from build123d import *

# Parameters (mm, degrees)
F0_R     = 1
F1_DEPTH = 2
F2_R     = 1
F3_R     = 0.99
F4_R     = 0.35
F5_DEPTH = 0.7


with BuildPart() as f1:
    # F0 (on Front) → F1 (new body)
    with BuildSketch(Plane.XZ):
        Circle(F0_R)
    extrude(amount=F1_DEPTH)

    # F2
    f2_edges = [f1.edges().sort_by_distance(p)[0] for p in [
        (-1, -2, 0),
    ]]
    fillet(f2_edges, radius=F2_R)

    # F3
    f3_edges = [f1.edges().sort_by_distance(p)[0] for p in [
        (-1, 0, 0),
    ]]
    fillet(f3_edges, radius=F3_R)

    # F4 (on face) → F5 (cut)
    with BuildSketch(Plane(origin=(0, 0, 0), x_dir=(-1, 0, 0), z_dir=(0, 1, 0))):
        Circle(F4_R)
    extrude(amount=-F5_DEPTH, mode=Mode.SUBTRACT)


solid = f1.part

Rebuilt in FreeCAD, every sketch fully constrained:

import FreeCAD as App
import Part
import Sketcher

V = App.Vector


def edges_at(feature, points):
    """Names of the edges that pass closest to the given points."""
    edges = feature.Shape.Edges
    near = lambda p: min(range(len(edges)), key=lambda i: edges[i].distToShape(Part.Vertex(*p))[0])
    return sorted({f"Edge{near(p) + 1}" for p in points})

doc = App.newDocument("Part")
body = doc.addObject("PartDesign::Body", "Body")

sketch1 = body.newObject("Sketcher::SketchObject", "Sketch")
sketch1.AttachmentSupport = (doc.getObject("XZ_Plane"), [""])
sketch1.MapMode = "FlatFace"
sketch1.addGeometry(Part.Circle(V(0, 0, 0), V(0, 0, 1), 1), False)
sketch1.addConstraint([
    Sketcher.Constraint("Coincident", 0, 3, -1, 1),
    Sketcher.Constraint("Diameter", 0, 2.0),
])
pad1 = body.newObject("PartDesign::Pad", "Pad")
pad1.Profile = sketch1
pad1.Length = 2
doc.recompute()

fillet = body.newObject("PartDesign::Fillet", "Fillet")
fillet.Base = (pad1, edges_at(pad1, [(-1, -2, 0)]))
fillet.Radius = 1
doc.recompute()

fillet2 = body.newObject("PartDesign::Fillet", "Fillet001")
fillet2.Base = (fillet, edges_at(fillet, [(-1, 0, 0)]))
fillet2.Radius = 0.99

sketch2 = body.newObject("Sketcher::SketchObject", "Sketch001")
sketch2.AttachmentSupport = (doc.getObject("XZ_Plane"), [""])
sketch2.MapMode = "FlatFace"
sketch2.addGeometry(Part.Circle(V(0, 0, 0), V(0, 0, 1), 0.35), False)
sketch2.addConstraint([
    Sketcher.Constraint("Coincident", 0, 3, -1, 1),
    Sketcher.Constraint("Diameter", 0, 0.7),
])
pocket1 = body.newObject("PartDesign::Pocket", "Pocket")
pocket1.Profile = sketch2
pocket1.Length = 0.7
pocket1.Reversed = True

doc.recompute()
